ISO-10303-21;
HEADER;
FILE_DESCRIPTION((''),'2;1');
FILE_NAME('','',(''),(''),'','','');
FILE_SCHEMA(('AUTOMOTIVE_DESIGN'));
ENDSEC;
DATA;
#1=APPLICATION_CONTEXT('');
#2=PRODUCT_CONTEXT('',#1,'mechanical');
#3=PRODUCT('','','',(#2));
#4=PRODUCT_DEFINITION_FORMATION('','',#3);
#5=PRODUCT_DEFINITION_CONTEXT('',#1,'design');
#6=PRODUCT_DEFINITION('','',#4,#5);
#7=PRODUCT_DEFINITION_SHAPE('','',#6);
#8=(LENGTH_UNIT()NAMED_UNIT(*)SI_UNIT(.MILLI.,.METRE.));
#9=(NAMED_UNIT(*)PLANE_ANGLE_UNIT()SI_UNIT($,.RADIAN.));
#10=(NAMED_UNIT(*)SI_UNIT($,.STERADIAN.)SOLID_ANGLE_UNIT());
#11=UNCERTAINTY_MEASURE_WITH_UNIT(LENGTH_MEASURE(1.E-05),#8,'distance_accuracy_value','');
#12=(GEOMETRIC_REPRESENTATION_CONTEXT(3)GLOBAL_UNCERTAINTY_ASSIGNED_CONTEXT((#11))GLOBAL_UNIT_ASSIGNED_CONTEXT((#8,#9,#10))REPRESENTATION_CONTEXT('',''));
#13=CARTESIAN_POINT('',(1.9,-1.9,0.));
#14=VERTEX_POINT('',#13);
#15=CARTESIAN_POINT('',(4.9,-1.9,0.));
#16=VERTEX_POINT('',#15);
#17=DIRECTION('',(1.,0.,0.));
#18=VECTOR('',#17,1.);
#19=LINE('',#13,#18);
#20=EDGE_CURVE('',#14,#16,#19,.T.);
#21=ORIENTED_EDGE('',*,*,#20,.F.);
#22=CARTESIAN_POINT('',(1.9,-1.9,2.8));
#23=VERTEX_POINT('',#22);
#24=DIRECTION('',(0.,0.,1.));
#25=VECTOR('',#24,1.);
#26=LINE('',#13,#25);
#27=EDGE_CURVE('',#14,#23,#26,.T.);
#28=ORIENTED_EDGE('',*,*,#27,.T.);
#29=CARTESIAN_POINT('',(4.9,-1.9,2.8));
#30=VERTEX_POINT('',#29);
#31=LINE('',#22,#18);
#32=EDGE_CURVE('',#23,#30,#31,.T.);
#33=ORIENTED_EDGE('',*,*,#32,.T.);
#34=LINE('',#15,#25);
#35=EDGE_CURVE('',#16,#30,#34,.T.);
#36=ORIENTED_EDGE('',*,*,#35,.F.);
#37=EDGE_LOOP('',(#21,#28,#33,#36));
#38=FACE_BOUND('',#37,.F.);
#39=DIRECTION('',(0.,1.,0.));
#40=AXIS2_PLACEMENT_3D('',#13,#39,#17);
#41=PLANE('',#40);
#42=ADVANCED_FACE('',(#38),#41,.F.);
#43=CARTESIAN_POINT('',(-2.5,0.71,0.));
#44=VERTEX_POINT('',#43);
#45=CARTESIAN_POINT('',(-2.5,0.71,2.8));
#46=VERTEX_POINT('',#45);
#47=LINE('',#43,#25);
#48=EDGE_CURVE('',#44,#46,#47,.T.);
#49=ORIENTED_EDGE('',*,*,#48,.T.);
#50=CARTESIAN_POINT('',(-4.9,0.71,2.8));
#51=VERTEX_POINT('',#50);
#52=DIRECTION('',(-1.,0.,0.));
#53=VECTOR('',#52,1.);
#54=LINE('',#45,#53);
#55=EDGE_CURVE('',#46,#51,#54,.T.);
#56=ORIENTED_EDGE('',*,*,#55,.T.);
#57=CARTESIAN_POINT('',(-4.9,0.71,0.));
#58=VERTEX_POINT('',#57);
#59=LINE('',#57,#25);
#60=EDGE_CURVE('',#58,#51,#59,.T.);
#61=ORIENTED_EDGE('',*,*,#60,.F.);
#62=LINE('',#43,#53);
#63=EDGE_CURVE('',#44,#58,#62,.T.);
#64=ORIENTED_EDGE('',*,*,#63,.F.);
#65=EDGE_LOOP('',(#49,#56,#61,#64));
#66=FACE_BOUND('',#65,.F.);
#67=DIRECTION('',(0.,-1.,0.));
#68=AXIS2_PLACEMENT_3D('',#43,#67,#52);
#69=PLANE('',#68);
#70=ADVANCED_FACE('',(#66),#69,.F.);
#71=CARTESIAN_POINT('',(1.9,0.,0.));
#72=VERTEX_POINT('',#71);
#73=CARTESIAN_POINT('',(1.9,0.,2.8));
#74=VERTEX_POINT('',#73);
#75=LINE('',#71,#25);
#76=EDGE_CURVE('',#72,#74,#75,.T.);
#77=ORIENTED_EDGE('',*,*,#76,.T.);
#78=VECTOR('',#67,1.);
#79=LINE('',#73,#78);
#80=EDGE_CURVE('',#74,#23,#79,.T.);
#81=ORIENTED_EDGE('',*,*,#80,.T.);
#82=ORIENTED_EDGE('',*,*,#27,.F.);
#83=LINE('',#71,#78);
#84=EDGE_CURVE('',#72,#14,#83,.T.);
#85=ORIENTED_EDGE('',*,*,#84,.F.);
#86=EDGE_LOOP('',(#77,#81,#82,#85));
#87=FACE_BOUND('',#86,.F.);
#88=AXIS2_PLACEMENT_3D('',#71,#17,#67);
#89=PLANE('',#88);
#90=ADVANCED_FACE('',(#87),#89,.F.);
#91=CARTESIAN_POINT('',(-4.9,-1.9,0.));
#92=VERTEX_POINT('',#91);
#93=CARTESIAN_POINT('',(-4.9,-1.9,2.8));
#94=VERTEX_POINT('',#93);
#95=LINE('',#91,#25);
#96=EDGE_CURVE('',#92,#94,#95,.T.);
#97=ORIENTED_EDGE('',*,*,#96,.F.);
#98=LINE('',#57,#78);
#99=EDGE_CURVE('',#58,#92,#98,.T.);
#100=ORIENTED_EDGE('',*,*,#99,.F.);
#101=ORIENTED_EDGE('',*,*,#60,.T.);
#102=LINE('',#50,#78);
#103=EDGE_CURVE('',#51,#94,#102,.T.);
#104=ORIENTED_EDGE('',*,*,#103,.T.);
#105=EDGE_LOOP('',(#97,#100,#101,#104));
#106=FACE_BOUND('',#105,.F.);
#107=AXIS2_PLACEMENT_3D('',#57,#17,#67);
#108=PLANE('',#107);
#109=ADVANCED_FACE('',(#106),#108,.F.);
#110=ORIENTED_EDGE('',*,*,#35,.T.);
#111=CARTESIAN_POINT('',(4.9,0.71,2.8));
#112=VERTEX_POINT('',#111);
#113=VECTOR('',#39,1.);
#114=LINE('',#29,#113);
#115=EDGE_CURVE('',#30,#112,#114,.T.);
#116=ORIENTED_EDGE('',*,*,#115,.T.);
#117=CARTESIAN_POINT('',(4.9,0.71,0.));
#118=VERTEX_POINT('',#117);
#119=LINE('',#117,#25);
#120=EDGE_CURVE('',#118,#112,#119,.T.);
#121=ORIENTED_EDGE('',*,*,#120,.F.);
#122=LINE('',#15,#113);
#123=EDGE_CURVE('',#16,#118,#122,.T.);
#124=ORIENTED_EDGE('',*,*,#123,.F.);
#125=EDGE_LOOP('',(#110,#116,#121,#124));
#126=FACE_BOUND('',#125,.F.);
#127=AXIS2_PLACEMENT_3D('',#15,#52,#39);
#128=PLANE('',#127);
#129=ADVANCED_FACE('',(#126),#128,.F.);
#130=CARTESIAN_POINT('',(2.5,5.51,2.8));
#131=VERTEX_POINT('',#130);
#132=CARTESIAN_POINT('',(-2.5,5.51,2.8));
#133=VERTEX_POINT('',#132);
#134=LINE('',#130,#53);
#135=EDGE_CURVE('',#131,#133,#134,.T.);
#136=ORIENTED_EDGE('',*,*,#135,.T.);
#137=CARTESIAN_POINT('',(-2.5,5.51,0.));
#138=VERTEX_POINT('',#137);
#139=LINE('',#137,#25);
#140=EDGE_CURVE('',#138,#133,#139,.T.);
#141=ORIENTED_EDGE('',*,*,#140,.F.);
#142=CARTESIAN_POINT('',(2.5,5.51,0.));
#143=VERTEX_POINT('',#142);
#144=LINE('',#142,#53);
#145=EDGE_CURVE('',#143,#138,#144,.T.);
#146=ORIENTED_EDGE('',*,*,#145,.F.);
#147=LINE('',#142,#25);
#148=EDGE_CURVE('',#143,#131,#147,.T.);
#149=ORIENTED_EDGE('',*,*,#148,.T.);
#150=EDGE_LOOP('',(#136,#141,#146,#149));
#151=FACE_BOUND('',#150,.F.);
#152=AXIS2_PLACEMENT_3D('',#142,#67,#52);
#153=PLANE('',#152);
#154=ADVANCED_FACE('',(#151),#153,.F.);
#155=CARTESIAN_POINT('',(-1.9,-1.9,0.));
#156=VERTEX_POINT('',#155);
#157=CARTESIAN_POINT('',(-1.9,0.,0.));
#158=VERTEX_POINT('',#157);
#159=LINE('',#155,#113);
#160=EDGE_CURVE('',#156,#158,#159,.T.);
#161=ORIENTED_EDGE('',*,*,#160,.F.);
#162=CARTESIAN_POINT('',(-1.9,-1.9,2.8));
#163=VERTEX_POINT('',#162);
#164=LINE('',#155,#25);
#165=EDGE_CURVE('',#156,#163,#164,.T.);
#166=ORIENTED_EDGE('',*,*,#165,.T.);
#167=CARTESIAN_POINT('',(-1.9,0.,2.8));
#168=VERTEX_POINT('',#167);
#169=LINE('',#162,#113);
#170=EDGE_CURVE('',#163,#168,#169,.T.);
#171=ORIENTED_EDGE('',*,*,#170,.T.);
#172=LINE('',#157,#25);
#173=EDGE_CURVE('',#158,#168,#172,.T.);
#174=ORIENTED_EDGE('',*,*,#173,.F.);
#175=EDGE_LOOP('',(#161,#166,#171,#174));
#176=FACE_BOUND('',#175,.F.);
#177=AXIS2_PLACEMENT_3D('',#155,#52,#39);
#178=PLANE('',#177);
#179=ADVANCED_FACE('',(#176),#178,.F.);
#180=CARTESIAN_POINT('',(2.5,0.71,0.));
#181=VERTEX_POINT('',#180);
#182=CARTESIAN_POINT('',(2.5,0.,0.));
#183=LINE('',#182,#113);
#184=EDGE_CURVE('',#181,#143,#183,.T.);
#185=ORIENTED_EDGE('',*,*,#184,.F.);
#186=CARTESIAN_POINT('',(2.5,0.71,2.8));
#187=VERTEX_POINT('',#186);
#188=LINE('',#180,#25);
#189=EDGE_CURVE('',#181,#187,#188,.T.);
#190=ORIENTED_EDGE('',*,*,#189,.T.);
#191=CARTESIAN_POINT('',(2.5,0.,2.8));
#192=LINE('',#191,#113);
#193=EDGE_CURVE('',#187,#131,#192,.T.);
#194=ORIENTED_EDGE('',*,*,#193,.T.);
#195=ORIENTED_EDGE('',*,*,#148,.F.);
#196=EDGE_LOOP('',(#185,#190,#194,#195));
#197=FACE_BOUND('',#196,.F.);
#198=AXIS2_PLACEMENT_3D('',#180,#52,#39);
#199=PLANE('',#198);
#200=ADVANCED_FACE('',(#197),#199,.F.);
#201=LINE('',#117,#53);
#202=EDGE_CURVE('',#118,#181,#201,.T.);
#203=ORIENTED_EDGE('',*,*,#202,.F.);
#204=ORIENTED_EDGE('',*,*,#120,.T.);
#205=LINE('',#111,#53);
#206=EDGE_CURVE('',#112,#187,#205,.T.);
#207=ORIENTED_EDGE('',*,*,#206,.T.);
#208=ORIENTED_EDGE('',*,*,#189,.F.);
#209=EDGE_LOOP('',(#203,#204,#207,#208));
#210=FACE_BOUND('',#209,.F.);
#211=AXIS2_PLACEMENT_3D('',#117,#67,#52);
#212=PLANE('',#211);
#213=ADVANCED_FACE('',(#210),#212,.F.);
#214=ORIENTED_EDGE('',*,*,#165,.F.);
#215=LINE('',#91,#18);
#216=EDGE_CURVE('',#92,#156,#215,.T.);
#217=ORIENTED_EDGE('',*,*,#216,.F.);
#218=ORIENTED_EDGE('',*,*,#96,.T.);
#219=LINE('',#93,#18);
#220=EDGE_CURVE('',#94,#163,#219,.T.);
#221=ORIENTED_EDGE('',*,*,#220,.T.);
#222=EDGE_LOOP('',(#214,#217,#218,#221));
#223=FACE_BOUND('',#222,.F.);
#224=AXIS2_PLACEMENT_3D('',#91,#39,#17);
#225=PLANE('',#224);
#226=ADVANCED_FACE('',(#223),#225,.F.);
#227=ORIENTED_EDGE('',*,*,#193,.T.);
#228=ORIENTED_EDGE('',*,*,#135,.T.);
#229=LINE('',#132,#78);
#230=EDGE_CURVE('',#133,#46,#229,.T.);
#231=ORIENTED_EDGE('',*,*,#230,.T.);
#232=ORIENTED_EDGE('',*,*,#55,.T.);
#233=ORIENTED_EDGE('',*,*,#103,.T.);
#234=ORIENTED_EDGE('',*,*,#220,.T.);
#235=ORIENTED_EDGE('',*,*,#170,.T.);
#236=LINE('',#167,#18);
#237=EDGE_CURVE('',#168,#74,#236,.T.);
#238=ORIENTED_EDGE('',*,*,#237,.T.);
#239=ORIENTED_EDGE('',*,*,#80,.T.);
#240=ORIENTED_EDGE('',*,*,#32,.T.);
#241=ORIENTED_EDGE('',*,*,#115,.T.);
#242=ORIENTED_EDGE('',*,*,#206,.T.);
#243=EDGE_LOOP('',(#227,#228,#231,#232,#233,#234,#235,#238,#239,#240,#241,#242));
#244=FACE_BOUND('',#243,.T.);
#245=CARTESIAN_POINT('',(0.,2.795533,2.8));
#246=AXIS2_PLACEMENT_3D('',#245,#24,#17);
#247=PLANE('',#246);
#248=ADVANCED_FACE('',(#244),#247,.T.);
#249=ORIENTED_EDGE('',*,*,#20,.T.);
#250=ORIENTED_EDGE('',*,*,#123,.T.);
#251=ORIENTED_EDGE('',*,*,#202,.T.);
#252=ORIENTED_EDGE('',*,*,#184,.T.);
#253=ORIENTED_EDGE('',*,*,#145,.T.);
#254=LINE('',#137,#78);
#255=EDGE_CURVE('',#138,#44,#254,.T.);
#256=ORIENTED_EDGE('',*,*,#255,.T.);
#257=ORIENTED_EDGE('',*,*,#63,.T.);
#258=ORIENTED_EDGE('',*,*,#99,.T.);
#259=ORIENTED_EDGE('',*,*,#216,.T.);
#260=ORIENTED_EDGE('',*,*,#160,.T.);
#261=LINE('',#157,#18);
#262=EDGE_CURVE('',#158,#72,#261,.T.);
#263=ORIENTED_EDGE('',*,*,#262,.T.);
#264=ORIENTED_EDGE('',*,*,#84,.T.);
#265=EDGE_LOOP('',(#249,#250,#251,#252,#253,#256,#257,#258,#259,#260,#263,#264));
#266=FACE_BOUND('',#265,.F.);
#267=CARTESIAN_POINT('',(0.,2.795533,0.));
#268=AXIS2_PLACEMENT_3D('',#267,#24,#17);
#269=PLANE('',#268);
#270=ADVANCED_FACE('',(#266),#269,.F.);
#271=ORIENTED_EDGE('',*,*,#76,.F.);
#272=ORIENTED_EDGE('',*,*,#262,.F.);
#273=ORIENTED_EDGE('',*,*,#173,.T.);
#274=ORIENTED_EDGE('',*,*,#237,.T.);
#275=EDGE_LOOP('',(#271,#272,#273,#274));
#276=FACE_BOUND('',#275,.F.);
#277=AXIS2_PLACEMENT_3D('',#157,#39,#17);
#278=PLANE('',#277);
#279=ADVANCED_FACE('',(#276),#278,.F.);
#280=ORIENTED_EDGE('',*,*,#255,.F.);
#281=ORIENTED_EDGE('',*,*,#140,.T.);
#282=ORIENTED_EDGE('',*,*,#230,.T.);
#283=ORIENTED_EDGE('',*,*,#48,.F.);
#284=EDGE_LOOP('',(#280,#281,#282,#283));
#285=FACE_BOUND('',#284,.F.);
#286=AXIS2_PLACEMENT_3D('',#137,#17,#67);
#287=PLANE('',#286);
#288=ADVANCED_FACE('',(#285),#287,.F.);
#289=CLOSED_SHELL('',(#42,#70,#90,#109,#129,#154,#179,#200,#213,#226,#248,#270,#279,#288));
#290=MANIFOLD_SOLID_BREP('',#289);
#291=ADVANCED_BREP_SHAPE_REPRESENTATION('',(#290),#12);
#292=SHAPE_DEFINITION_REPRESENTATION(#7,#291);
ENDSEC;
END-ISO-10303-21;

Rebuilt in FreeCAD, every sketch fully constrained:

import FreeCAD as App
import Part
import Sketcher

V = App.Vector
Q = App.Units.Quantity


def add_polygon(sketch, points):
    """Adds a closed chain of lines whose ends are joined by coincident constraints."""
    first, n = sketch.GeometryCount, len(points)
    for a, b in zip(points, points[1:] + points[:1]):
        sketch.addGeometry(Part.LineSegment(App.Vector(*a, 0), App.Vector(*b, 0)), False)
    for i in range(n):
        sketch.addConstraint(Sketcher.Constraint("Coincident", first + i, 2, first + (i + 1) % n, 1))

doc = App.newDocument("Part")
body = doc.addObject("PartDesign::Body", "Body")

sketch1 = body.newObject("Sketcher::SketchObject", "Sketch")
sketch1.AttachmentSupport = (doc.getObject("XY_Plane"), [""])
sketch1.MapMode = "FlatFace"
add_polygon(sketch1, [(2.5, 5.51), (-2.5, 5.51), (-2.5, 0.71), (-4.9, 0.71), (-4.9, -1.9), (-1.9, -1.9), (-1.9, 0), (1.9, 0), (1.9, -1.9), (4.9, -1.9), (4.9, 0.71), (2.5, 0.71)])
sketch1.addConstraint([
    Sketcher.Constraint("Horizontal", 0),
    Sketcher.Constraint("Vertical", 1),
    Sketcher.Constraint("Horizontal", 2),
    Sketcher.Constraint("Vertical", 3),
    Sketcher.Constraint("Horizontal", 4),
    Sketcher.Constraint("Vertical", 5),
    Sketcher.Constraint("Horizontal", 6),
    Sketcher.Constraint("Vertical", 7),
    Sketcher.Constraint("Horizontal", 8),
    Sketcher.Constraint("Vertical", 9),
    Sketcher.Constraint("Horizontal", 10),
    Sketcher.Constraint("Vertical", 11),
    Sketcher.Constraint("Symmetric", 5, 2, 6, 2, -1, 1),
    Sketcher.Constraint("Symmetric", 3, 2, 8, 2, -2),
    Sketcher.Constraint("Symmetric", 1, 2, 10, 2, -2),
    Sketcher.Constraint("DistanceX", 0, 2, 0, 1, Q("5 mm")),
    Sketcher.Constraint("DistanceX", 4, 1, 4, 2, Q("3 mm")),
    Sketcher.Constraint("DistanceX", 2, 2, 2, 1, Q("2.4 mm")),
    Sketcher.Constraint("DistanceY", 1, 2, 1, 1, Q("4.8 mm")),
    Sketcher.Constraint("DistanceY", 5, 1, 5, 2, Q("1.9 mm")),
    Sketcher.Constraint("DistanceY", 3, 2, 3, 1, Q("2.61 mm")),
])
pad1 = body.newObject("PartDesign::Pad", "Pad")
pad1.Profile = sketch1
pad1.Length = 2.8

doc.recompute()
